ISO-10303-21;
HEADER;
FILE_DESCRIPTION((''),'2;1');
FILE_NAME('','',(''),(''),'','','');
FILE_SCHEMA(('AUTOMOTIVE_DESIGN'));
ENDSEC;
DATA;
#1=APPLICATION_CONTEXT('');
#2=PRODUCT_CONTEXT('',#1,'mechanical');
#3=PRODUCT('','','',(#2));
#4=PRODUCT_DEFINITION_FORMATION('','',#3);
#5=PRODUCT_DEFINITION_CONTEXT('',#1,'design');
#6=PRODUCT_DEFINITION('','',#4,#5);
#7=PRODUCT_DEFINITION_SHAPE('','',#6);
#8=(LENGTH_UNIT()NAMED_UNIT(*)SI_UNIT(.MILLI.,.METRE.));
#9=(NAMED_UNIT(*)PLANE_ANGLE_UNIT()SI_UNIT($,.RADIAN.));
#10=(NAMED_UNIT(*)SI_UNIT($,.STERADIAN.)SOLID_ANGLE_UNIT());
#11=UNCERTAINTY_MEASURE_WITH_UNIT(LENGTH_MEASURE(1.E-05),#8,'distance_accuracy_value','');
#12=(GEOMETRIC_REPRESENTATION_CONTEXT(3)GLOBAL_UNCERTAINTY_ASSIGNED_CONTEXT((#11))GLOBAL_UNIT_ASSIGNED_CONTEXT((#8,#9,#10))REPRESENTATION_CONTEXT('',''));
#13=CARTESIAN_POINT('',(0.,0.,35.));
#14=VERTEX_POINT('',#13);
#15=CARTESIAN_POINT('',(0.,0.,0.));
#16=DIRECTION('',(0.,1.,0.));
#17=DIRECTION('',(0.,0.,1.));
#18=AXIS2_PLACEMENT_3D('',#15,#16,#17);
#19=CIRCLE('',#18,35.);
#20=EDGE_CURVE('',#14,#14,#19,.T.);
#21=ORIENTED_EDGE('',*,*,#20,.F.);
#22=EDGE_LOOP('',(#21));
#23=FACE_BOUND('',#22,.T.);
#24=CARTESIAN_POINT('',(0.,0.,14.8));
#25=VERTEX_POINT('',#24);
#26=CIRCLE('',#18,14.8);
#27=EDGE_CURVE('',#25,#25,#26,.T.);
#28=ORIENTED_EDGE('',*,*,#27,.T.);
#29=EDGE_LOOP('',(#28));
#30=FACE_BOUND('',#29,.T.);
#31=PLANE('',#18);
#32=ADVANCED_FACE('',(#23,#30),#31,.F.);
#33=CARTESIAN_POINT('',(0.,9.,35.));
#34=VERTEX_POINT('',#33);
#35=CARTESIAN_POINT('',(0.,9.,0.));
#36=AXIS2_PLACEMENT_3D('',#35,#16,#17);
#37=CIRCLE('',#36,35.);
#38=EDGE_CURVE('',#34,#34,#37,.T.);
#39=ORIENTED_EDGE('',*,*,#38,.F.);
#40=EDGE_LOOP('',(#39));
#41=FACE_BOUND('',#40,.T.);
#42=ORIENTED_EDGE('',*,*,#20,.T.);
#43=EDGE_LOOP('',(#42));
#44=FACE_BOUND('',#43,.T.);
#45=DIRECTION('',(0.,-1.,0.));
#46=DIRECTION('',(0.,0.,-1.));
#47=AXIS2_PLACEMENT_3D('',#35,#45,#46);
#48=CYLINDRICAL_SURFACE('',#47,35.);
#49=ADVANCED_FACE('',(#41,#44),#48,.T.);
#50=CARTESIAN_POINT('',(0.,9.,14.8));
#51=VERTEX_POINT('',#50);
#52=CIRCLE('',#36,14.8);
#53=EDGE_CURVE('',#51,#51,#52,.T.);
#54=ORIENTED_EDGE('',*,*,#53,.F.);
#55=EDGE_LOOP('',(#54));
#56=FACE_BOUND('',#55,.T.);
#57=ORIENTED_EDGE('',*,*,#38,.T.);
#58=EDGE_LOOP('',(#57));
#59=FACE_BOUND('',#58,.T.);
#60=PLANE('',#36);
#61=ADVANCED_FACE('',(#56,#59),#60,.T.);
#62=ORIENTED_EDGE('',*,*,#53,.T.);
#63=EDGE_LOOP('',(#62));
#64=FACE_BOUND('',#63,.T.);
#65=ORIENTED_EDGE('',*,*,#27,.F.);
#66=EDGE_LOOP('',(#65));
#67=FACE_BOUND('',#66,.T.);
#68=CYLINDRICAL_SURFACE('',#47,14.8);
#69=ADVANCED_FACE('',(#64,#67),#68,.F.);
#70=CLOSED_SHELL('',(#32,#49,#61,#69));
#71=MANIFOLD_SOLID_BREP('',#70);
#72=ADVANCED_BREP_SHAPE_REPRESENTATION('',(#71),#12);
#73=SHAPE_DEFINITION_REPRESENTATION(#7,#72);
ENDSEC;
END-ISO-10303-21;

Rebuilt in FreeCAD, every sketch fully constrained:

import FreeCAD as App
import Part
import Sketcher
from FreeCAD import Vector
Q = App.Units.Quantity

doc = App.newDocument("Part")
params = doc.addObject("Spreadsheet::Sheet", "Params")
for row, (alias, value) in enumerate([
    ("sketch1_diameter", "70 mm"),
    ("sketch1_diameter2", "29.6 mm"),
    ("pad1_length", "9 mm"),
], start=1):
    params.set(f"A{row}", alias)
    params.set(f"B{row}", "=" + value)
    params.setAlias(f"B{row}", alias)

body = doc.addObject("PartDesign::Body", "Body")

# Sketch on XZ plane
sketch1 = body.newObject("Sketcher::SketchObject", "Sketch")
sketch1.AttachmentSupport = (doc.getObject("XZ_Plane"), [""])
sketch1.MapMode = "FlatFace"
sketch1.addGeometry([
    Part.Circle(Vector(0, 0, 0), Vector(0, 0, 1), 35),
    Part.Circle(Vector(0, 0, 0), Vector(0, 0, 1), 15),
], False)
sketch1.addConstraint([
    Sketcher.Constraint("Coincident", 0, 3, -1, 1),
    Sketcher.Constraint("Coincident", 1, 3, -1, 1),
    Sketcher.Constraint("Diameter", 0, Q("70 mm")),
    Sketcher.Constraint("Diameter", 1, Q("29.6 mm")),
])
sketch1.setExpression("Constraints[2]", "Params.sketch1_diameter")
sketch1.setExpression("Constraints[3]", "Params.sketch1_diameter2")
pad1 = body.newObject("PartDesign::Pad", "Pad")
pad1.Profile = sketch1
pad1.setExpression("Length", "Params.pad1_length")
pad1.Reversed = True

doc.recompute()
